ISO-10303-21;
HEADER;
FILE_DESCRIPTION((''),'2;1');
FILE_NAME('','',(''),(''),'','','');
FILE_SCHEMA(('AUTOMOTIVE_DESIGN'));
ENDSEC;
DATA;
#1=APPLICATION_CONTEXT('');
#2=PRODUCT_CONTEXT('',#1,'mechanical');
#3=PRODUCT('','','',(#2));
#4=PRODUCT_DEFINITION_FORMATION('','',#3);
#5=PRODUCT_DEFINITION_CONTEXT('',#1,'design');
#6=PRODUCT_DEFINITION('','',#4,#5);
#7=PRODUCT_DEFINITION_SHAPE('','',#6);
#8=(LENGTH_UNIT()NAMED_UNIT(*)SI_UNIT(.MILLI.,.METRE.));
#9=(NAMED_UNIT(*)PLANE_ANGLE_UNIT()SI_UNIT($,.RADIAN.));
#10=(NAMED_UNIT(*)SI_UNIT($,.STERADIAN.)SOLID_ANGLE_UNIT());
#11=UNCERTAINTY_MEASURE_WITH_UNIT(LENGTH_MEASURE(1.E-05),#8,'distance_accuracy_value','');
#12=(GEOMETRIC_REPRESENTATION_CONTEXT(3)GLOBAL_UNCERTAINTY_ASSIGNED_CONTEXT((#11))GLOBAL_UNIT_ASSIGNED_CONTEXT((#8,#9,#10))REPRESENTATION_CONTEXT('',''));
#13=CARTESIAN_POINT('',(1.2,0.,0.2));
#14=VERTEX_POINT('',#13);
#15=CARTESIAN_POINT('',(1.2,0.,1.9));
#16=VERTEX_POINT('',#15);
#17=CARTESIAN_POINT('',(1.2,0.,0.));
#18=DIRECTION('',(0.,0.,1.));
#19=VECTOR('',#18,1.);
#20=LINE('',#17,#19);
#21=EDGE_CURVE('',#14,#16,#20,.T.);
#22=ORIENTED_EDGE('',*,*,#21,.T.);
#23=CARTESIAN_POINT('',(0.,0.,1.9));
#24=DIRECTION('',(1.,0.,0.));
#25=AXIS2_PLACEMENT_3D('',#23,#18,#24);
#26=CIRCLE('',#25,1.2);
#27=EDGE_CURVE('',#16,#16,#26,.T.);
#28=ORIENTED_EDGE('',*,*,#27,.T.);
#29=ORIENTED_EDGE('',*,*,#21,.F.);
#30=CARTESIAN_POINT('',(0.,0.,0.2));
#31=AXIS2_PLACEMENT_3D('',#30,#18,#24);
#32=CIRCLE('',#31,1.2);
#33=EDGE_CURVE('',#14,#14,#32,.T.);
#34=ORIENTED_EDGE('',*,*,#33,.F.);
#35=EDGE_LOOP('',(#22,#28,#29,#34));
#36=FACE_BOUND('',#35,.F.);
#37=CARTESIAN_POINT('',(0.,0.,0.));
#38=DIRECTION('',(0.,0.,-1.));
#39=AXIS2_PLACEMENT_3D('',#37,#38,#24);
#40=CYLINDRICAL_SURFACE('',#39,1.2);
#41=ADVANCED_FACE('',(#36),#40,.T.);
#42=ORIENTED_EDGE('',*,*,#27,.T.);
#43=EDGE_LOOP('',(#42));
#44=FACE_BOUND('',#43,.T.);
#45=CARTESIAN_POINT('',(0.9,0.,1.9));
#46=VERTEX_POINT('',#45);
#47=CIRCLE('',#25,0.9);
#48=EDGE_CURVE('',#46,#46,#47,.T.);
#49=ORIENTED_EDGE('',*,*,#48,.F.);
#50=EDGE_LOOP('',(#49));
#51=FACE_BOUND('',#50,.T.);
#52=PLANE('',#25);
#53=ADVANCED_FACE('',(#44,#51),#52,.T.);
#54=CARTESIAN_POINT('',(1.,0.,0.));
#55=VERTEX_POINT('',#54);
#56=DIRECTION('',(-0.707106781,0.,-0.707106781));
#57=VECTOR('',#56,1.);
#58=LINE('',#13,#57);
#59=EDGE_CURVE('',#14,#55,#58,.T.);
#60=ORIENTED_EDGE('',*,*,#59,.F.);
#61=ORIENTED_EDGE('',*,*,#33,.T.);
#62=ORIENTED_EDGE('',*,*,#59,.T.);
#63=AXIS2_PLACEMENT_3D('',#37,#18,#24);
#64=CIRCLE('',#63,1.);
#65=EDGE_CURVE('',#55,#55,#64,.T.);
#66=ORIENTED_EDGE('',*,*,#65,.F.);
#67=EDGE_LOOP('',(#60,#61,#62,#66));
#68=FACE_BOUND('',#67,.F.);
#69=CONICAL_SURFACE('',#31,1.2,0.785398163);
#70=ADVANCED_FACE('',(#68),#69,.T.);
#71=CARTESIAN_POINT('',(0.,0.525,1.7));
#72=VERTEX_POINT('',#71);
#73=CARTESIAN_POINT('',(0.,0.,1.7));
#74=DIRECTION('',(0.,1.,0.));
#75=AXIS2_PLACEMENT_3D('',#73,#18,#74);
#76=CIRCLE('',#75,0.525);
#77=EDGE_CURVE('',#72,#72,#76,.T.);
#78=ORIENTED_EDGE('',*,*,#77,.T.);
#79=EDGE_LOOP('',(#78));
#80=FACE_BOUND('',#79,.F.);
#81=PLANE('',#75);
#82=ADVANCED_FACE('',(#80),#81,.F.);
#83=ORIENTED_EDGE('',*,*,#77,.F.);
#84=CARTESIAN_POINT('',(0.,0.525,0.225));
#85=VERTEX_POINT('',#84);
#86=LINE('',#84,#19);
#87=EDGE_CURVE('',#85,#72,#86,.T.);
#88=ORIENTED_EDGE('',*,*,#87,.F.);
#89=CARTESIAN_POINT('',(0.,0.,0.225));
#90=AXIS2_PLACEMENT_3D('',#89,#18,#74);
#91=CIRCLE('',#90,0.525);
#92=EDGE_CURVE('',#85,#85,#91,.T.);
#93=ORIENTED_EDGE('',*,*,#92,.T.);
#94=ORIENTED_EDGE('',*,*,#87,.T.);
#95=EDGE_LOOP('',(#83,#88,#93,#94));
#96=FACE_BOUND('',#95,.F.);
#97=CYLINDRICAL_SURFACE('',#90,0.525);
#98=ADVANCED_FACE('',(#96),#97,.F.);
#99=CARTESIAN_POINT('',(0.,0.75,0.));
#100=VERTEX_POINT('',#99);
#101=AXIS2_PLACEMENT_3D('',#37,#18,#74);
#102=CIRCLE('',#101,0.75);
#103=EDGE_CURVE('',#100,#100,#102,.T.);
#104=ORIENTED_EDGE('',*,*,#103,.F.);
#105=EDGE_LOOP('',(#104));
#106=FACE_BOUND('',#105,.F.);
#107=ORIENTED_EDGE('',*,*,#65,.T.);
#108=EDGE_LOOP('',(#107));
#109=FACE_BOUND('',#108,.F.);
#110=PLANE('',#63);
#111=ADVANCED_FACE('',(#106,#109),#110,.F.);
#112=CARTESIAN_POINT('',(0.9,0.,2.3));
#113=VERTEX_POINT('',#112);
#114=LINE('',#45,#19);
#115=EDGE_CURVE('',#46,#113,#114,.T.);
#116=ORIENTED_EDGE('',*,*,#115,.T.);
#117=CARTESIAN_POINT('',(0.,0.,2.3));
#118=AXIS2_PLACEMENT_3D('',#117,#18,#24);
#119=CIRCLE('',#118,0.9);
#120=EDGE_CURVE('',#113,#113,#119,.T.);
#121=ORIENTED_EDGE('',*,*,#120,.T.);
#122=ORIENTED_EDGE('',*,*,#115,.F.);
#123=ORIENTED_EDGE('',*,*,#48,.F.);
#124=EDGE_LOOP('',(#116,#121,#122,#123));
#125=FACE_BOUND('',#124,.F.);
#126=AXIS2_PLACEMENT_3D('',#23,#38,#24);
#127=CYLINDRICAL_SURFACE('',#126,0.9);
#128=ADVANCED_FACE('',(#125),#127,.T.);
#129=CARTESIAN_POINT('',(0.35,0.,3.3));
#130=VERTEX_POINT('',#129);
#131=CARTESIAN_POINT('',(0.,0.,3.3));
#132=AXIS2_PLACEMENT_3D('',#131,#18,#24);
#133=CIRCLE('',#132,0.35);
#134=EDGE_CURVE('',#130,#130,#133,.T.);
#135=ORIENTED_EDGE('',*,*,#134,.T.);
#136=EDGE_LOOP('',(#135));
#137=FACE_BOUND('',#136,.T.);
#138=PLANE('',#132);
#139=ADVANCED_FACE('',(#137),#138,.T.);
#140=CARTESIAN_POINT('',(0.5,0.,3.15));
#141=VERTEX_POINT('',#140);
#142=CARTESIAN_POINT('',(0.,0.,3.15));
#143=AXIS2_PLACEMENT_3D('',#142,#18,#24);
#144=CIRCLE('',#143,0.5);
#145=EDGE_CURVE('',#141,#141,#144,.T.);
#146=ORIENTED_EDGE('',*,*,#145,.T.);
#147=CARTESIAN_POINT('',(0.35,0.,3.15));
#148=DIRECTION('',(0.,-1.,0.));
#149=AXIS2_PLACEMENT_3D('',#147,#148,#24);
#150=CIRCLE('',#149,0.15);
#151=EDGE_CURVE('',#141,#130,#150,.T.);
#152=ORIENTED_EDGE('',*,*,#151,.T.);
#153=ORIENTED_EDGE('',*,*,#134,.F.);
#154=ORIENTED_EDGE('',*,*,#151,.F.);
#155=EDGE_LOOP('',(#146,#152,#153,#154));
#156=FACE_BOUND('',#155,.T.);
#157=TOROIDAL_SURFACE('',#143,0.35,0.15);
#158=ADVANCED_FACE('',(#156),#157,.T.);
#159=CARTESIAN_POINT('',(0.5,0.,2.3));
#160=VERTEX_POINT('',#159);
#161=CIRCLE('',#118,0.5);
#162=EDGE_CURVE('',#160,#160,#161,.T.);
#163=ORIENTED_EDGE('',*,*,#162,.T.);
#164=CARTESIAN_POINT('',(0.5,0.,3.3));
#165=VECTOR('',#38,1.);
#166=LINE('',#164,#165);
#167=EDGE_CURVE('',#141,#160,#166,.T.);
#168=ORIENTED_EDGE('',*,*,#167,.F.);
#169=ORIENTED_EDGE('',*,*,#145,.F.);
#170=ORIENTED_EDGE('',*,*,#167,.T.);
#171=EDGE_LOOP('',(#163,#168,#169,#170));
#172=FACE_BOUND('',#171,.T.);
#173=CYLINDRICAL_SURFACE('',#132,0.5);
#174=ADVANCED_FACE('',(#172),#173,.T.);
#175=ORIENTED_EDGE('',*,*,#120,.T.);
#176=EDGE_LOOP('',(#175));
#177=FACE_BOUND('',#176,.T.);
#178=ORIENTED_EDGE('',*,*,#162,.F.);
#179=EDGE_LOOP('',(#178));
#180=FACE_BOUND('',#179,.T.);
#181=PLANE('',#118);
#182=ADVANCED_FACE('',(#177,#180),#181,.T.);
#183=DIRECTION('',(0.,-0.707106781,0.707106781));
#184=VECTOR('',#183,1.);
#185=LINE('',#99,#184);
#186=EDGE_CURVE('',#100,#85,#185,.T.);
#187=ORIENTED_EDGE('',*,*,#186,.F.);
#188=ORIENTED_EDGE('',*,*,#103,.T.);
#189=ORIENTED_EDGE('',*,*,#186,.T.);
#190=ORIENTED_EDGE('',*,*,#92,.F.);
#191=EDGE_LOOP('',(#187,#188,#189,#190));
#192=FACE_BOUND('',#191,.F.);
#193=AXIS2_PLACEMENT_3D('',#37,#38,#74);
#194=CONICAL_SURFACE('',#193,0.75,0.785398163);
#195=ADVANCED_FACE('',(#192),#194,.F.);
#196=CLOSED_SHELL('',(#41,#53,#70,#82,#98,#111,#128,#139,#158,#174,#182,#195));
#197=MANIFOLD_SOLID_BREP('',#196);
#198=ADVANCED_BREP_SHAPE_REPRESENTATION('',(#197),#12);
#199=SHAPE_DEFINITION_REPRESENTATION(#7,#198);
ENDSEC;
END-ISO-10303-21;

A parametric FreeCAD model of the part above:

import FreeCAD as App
import Part
import Sketcher

V = App.Vector
Q = App.Units.Quantity


def edges_at(feature, points):
    """Names of the edges that pass closest to the given points."""
    edges = feature.Shape.Edges
    near = lambda p: min(range(len(edges)), key=lambda i: edges[i].distToShape(Part.Vertex(*p))[0])
    return sorted({f"Edge{near(p) + 1}" for p in points})

doc = App.newDocument("Part")
params = doc.addObject("Spreadsheet::Sheet", "Params")
for row, (alias, value) in enumerate([
    ("sketch1_diameter", "2.4 mm"),
    ("pad1_length", "3.3 mm"),
    ("sketch2_diameter", "1 mm"),
    ("sketch2_diameter2", "2.4 mm"),
    ("pocket1_length", "1.4 mm"),
    ("sketch3_diameter", "1.05 mm"),
    ("hole_diameter", "1.05 mm"),
    ("hole_depth", "1.7 mm"),
    ("hole_csink_diameter", "1.5 mm"),
    ("sketch4_diameter", "1.8 mm"),
    ("sketch4_diameter2", "1 mm"),
    ("pad2_length", "0.4 mm"),
    ("fillet_radius", "0.15 mm"),
    ("chamfer_size", "0.2 mm"),
], start=1):
    params.set(f"A{row}", alias)
    params.set(f"B{row}", "=" + value)
    params.setAlias(f"B{row}", alias)

body = doc.addObject("PartDesign::Body", "Body")

sketch1 = body.newObject("Sketcher::SketchObject", "Sketch")
sketch1.AttachmentSupport = (doc.getObject("XY_Plane"), [""])
sketch1.MapMode = "FlatFace"
sketch1.addGeometry(Part.Circle(V(0, 0, 0), V(0, 0, 1), 1.2), False)
sketch1.addConstraint(Sketcher.Constraint("Coincident", 0, 3, -1, 1))
sketch1.addConstraint(Sketcher.Constraint("Diameter", 0, Q("2.4 mm")))
sketch1.setExpression("Constraints[1]", "Params.sketch1_diameter")
pad1 = body.newObject("PartDesign::Pad", "Pad")
pad1.Profile = sketch1
pad1.setExpression("Length", "Params.pad1_length")

sketch2 = body.newObject("Sketcher::SketchObject", "Sketch001")
sketch2.AttachmentSupport = (doc.getObject("XY_Plane"), [""])
sketch2.MapMode = "FlatFace"
sketch2.AttachmentOffset = App.Placement(V(0, 0, 3.3), App.Rotation())
sketch2.addGeometry(Part.Circle(V(0, 0, 0), V(0, 0, 1), 1.2), False)
sketch2.addGeometry(Part.Circle(V(0, 0, 0), V(0, 0, 1), 0.5), False)
sketch2.addConstraint(Sketcher.Constraint("Coincident", 0, 3, -1, 1))
sketch2.addConstraint(Sketcher.Constraint("Coincident", 1, 3, -1, 1))
sketch2.addConstraint(Sketcher.Constraint("Diameter", 1, Q("1 mm")))
sketch2.addConstraint(Sketcher.Constraint("Diameter", 0, Q("2.4 mm")))
sketch2.setExpression("Constraints[2]", "Params.sketch2_diameter")
sketch2.setExpression("Constraints[3]", "Params.sketch2_diameter2")
pocket1 = body.newObject("PartDesign::Pocket", "Pocket")
pocket1.Profile = sketch2
pocket1.setExpression("Length", "Params.pocket1_length")

sketch3 = body.newObject("Sketcher::SketchObject", "Sketch002")
sketch3.AttachmentSupport = (doc.getObject("XY_Plane"), [""])
sketch3.MapMode = "FlatFace"
sketch3.addGeometry(Part.Circle(V(0, 0, 0), V(0, 0, 1), 0.5), False)
sketch3.addConstraint(Sketcher.Constraint("Coincident", 0, 3, -1, 1))
sketch3.addConstraint(Sketcher.Constraint("Diameter", 0, Q("1.05 mm")))
sketch3.setExpression("Constraints[1]", "Params.sketch3_diameter")
doc.recompute()
hole = body.newObject("PartDesign::Hole", "Hole")
hole.Profile = sketch3
hole.ThreadType = "None"
hole.setExpression("Diameter", "Params.hole_diameter")
hole.DepthType = "Dimension"
hole.setExpression("Depth", "Params.hole_depth")
hole.DrillPoint = "Flat"
hole.HoleCutType = "Countersink"
hole.setExpression("HoleCutDiameter", "Params.hole_csink_diameter")
hole.HoleCutCountersinkAngle = 90
hole.Reversed = True

sketch4 = body.newObject("Sketcher::SketchObject", "Sketch003")
sketch4.AttachmentSupport = (doc.getObject("XY_Plane"), [""])
sketch4.MapMode = "FlatFace"
sketch4.AttachmentOffset = App.Placement(V(0, 0, 1.9), App.Rotation())
sketch4.addGeometry(Part.Circle(V(0, 0, 0), V(0, 0, 1), 0.9), False)
sketch4.addGeometry(Part.Circle(V(0, 0, 0), V(0, 0, 1), 0.5), False)
sketch4.addConstraint(Sketcher.Constraint("Coincident", 0, 3, -1, 1))
sketch4.addConstraint(Sketcher.Constraint("Coincident", 1, 3, -1, 1))
sketch4.addConstraint(Sketcher.Constraint("Diameter", 0, Q("1.8 mm")))
sketch4.addConstraint(Sketcher.Constraint("Diameter", 1, Q("1 mm")))
sketch4.setExpression("Constraints[2]", "Params.sketch4_diameter")
sketch4.setExpression("Constraints[3]", "Params.sketch4_diameter2")
pad2 = body.newObject("PartDesign::Pad", "Pad001")
pad2.Profile = sketch4
pad2.setExpression("Length", "Params.pad2_length")
doc.recompute()

fillet = body.newObject("PartDesign::Fillet", "Fillet")
fillet.Base = (pad2, edges_at(pad2, [(-0.5, 0, 3.3)]))
fillet.setExpression("Radius", "Params.fillet_radius")
doc.recompute()

chamfer = body.newObject("PartDesign::Chamfer", "Chamfer")
chamfer.Base = (fillet, edges_at(fillet, [(-1.2, 0, 0)]))
chamfer.setExpression("Size", "Params.chamfer_size")

doc.recompute()
